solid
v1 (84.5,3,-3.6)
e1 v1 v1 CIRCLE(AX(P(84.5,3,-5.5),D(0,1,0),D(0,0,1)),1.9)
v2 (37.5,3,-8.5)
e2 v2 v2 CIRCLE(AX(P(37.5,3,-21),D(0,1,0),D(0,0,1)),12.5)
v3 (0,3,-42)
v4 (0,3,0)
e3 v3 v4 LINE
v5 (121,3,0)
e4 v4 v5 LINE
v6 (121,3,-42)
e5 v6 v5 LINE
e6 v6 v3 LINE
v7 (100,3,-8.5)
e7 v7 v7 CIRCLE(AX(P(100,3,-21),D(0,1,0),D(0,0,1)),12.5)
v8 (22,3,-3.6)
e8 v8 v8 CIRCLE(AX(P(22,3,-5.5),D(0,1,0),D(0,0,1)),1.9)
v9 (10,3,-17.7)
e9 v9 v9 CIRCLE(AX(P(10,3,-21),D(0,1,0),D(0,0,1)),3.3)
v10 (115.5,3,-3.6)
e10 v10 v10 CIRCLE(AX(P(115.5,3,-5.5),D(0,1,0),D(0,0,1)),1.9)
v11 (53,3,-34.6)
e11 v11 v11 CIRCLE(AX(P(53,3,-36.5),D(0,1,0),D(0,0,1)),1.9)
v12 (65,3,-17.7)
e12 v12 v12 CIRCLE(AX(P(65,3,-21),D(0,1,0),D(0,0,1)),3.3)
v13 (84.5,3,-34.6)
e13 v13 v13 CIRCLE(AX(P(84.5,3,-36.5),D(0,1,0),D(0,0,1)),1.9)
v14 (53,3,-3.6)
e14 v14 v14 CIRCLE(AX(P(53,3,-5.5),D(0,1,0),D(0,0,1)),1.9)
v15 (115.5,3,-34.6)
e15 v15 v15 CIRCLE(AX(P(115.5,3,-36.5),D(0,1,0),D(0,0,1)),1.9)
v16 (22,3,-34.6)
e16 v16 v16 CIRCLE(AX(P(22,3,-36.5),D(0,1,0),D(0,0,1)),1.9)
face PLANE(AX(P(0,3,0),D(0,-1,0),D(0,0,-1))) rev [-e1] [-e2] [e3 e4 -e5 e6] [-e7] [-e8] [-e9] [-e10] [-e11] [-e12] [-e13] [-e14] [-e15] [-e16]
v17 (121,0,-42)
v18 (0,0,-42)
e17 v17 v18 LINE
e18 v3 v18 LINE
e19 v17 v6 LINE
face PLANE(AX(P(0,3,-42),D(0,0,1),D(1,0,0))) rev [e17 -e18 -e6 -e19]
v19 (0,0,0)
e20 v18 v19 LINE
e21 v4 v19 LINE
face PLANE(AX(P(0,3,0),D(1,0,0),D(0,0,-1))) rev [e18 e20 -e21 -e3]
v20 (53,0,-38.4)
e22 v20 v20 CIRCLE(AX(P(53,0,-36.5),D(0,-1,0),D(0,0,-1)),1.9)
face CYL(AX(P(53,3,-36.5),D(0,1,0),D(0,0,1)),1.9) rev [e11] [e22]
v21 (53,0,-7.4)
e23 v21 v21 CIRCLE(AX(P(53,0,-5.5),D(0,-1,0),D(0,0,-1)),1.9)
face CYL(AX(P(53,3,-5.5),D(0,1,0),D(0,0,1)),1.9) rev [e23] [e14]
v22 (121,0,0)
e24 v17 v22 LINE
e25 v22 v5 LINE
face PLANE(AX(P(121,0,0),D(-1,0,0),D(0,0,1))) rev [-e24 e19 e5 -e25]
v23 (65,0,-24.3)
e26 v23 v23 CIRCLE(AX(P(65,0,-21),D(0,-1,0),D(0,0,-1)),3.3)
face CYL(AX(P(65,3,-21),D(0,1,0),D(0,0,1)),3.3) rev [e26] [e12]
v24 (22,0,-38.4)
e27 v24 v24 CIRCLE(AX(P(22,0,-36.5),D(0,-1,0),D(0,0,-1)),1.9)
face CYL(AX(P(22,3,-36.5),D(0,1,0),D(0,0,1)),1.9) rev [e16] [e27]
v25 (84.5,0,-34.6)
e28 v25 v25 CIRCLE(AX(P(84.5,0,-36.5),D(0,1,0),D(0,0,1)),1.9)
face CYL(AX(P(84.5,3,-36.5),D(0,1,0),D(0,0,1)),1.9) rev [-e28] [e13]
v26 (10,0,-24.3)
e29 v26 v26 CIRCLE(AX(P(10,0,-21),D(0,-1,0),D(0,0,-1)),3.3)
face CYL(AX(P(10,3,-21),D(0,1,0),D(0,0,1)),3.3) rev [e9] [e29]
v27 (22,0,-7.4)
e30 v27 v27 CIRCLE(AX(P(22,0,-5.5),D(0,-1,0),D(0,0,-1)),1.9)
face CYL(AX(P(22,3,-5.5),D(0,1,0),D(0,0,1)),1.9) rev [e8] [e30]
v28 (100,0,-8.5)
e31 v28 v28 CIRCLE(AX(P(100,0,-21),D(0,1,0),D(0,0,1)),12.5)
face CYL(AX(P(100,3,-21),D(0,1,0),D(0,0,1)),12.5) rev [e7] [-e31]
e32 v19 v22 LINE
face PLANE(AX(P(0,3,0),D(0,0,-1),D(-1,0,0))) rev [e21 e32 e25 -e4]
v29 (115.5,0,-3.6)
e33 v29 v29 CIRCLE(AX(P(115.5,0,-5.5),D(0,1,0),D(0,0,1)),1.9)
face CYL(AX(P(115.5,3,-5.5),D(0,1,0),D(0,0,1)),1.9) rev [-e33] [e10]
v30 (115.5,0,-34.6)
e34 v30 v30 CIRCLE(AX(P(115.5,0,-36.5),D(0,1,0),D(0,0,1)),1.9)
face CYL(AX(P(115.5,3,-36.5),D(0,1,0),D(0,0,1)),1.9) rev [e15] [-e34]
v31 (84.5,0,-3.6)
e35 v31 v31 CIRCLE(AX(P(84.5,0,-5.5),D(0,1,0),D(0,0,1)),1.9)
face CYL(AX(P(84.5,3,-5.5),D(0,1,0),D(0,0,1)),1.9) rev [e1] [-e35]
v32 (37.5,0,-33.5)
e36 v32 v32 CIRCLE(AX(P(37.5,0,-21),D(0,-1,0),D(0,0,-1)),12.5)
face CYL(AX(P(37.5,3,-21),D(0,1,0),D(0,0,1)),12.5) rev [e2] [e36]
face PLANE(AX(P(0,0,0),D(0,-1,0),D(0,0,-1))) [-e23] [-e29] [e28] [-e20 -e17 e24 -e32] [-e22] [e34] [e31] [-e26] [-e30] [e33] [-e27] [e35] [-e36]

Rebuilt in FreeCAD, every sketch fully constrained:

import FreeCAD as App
import Part
import Sketcher
from FreeCAD import Vector
Q = App.Units.Quantity

doc = App.newDocument("Part")
body = doc.addObject("PartDesign::Body", "Body")

# Sketch on XZ plane
sketch1 = body.newObject("Sketcher::SketchObject", "Sketch")
sketch1.AttachmentSupport = (doc.getObject("XZ_Plane"), [""])
sketch1.MapMode = "FlatFace"
sketch1.addGeometry(Part.LineSegment(Vector(0, -42, 0), Vector(0, 0, 0)), False)
sketch1.addGeometry(Part.LineSegment(Vector(0, 0, 0), Vector(75, 0, 0)), False)
sketch1.addGeometry(Part.LineSegment(Vector(75, 0, 0), Vector(75, -42, 0)), False)
sketch1.addGeometry(Part.LineSegment(Vector(75, -42, 0), Vector(0, -42, 0)), False)
sketch1.addConstraint(Sketcher.Constraint("Coincident", 0, 2, 1, 1))
sketch1.addConstraint(Sketcher.Constraint("Coincident", 1, 2, 2, 1))
sketch1.addConstraint(Sketcher.Constraint("Coincident", 2, 2, 3, 1))
sketch1.addConstraint(Sketcher.Constraint("Coincident", 3, 2, 0, 1))
sketch1.addConstraint(Sketcher.Constraint("Vertical", 0))
sketch1.addConstraint(Sketcher.Constraint("Horizontal", 1))
sketch1.addConstraint(Sketcher.Constraint("Vertical", 2))
sketch1.addConstraint(Sketcher.Constraint("Horizontal", 3))
sketch1.addConstraint(Sketcher.Constraint("Coincident", 0, 2, -1, 1))
sketch1.addConstraint(Sketcher.Constraint("DistanceX", 1, 1, 1, 2, Q("75 mm")))
sketch1.addConstraint(Sketcher.Constraint("DistanceY", 0, 1, 0, 2, Q("42 mm")))
pad1 = body.newObject("PartDesign::Pad", "Pad")
pad1.Profile = sketch1
pad1.Length = 3
pad1.Reversed = True

# Sketch on XZ plane
sketch2 = body.newObject("Sketcher::SketchObject", "Sketch001")
sketch2.AttachmentSupport = (doc.getObject("XZ_Plane"), [""])
sketch2.MapMode = "FlatFace"
sketch2.AttachmentOffset = App.Placement(Vector(0, 0, -3), App.Rotation())
sketch2.addGeometry(Part.Circle(Vector(22, -36.5, 0), Vector(0, 0, 1), 1.9), False)
sketch2.addGeometry(Part.Circle(Vector(53, -36.5, 0), Vector(0, 0, 1), 1.9), False)
sketch2.addGeometry(Part.Circle(Vector(53, -5.5, 0), Vector(0, 0, 1), 1.9), False)
sketch2.addGeometry(Part.Circle(Vector(22, -5.5, 0), Vector(0, 0, 1), 1.9), False)
sketch2.addConstraint(Sketcher.Constraint("Equal", 0, 1))
sketch2.addConstraint(Sketcher.Constraint("Equal", 1, 2))
sketch2.addConstraint(Sketcher.Constraint("Equal", 2, 3))
sketch2.addConstraint(Sketcher.Constraint("Horizontal", 0, 3, 1, 3))
sketch2.addConstraint(Sketcher.Constraint("Horizontal", 2, 3, 3, 3))
sketch2.addConstraint(Sketcher.Constraint("Vertical", 1, 3, 2, 3))
sketch2.addConstraint(Sketcher.Constraint("Vertical", 0, 3, 3, 3))
sketch2.addConstraint(Sketcher.Constraint("Diameter", 0, Q("3.8 mm")))
sketch2.addConstraint(Sketcher.Constraint("DistanceX", -1, 1, 0, 3, Q("22 mm")))
sketch2.addConstraint(Sketcher.Constraint("DistanceX", -1, 1, 1, 3, Q("53 mm")))
sketch2.addConstraint(Sketcher.Constraint("DistanceY", 1, 3, 2, 3, Q("31 mm")))
sketch2.addConstraint(Sketcher.Constraint("DistanceY", 0, 3, -1, 1, Q("36.5 mm")))
doc.recompute()
hole = body.newObject("PartDesign::Hole", "Hole")
hole.Profile = sketch2
hole.ThreadType = "None"
hole.Diameter = 3.8
hole.DepthType = "ThroughAll"
hole.Reversed = True

# Sketch on XZ plane
sketch3 = body.newObject("Sketcher::SketchObject", "Sketch002")
sketch3.AttachmentSupport = (doc.getObject("XZ_Plane"), [""])
sketch3.MapMode = "FlatFace"
sketch3.AttachmentOffset = App.Placement(Vector(0, 0, -3), App.Rotation())
sketch3.addGeometry(Part.Circle(Vector(10, -21, 0), Vector(0, 0, 1), 3.3), False)
sketch3.addGeometry(Part.Circle(Vector(65, -21, 0), Vector(0, 0, 1), 3.3), False)
sketch3.addConstraint(Sketcher.Constraint("Equal", 0, 1))
sketch3.addConstraint(Sketcher.Constraint("Horizontal", 0, 3, 1, 3))
sketch3.addConstraint(Sketcher.Constraint("Diameter", 0, Q("6.6 mm")))
sketch3.addConstraint(Sketcher.Constraint("DistanceX", -1, 1, 0, 3, Q("10 mm")))
sketch3.addConstraint(Sketcher.Constraint("DistanceY", 0, 3, -1, 1, Q("21 mm")))
sketch3.addConstraint(Sketcher.Constraint("DistanceX", -1, 1, 1, 3, Q("65 mm")))
doc.recompute()
hole2 = body.newObject("PartDesign::Hole", "Hole001")
hole2.Profile = sketch3
hole2.ThreadType = "None"
hole2.Diameter = 6.6
hole2.DepthType = "ThroughAll"
hole2.Reversed = True

# Sketch on XZ plane
sketch4 = body.newObject("Sketcher::SketchObject", "Sketch003")
sketch4.AttachmentSupport = (doc.getObject("XZ_Plane"), [""])
sketch4.MapMode = "FlatFace"
sketch4.AttachmentOffset = App.Placement(Vector(0, 0, -3), App.Rotation())
sketch4.addGeometry(Part.Circle(Vector(38, -21, 0), Vector(0, 0, 1), 12), False)
sketch4.addConstraint(Sketcher.Constraint("Diameter", 0, Q("25 mm")))
sketch4.addConstraint(Sketcher.Constraint("DistanceY", 0, 3, -1, 1, Q("21 mm")))
sketch4.addConstraint(Sketcher.Constraint("DistanceX", -1, 1, 0, 3, Q("37.5 mm")))
doc.recompute()
hole3 = body.newObject("PartDesign::Hole", "Hole002")
hole3.Profile = sketch4
hole3.ThreadType = "None"
hole3.Diameter = 25
hole3.DepthType = "ThroughAll"
hole3.Reversed = True

# Sketch on XZ plane
sketch5 = body.newObject("Sketcher::SketchObject", "Sketch004")
sketch5.AttachmentSupport = (doc.getObject("XZ_Plane"), [""])
sketch5.MapMode = "FlatFace"
sketch5.AttachmentOffset = App.Placement(Vector(0, 0, -3), App.Rotation())
sketch5.addGeometry(Part.LineSegment(Vector(121, -42, 0), Vector(75, -42, 0)), False)
sketch5.addGeometry(Part.LineSegment(Vector(75, -42, 0), Vector(75, 0, 0)), False)
sketch5.addGeometry(Part.LineSegment(Vector(75, 0, 0), Vector(121, 0, 0)), False)
sketch5.addGeometry(Part.LineSegment(Vector(121, 0, 0), Vector(121, -42, 0)), False)
sketch5.addConstraint(Sketcher.Constraint("Coincident", 0, 2, 1, 1))
sketch5.addConstraint(Sketcher.Constraint("Coincident", 1, 2, 2, 1))
sketch5.addConstraint(Sketcher.Constraint("Coincident", 2, 2, 3, 1))
sketch5.addConstraint(Sketcher.Constraint("Coincident", 3, 2, 0, 1))
sketch5.addConstraint(Sketcher.Constraint("Horizontal", 0))
sketch5.addConstraint(Sketcher.Constraint("Vertical", 1))
sketch5.addConstraint(Sketcher.Constraint("Horizontal", 2))
sketch5.addConstraint(Sketcher.Constraint("Vertical", 3))
sketch5.addConstraint(Sketcher.Constraint("PointOnObject", 1, 2, -1))
sketch5.addConstraint(Sketcher.Constraint("DistanceX", 0, 2, 0, 1, Q("46 mm")))
sketch5.addConstraint(Sketcher.Constraint("DistanceY", 1, 1, 1, 2, Q("42 mm")))
sketch5.addConstraint(Sketcher.Constraint("DistanceX", -1, 1, 0, 2, Q("75 mm")))
pad2 = body.newObject("PartDesign::Pad", "Pad001")
pad2.Profile = sketch5
pad2.Length = 3

# Sketch on XZ plane
sketch6 = body.newObject("Sketcher::SketchObject", "Sketch005")
sketch6.AttachmentSupport = (doc.getObject("XZ_Plane"), [""])
sketch6.MapMode = "FlatFace"
sketch6.AttachmentOffset = App.Placement(Vector(0, 0, -3), App.Rotation())
sketch6.addGeometry(Part.Circle(Vector(84.5, -36.5, 0), Vector(0, 0, 1), 1.9), False)
sketch6.addGeometry(Part.Circle(Vector(115.5, -36.5, 0), Vector(0, 0, 1), 1.9), False)
sketch6.addGeometry(Part.Circle(Vector(115.5, -5.5, 0), Vector(0, 0, 1), 1.9), False)
sketch6.addGeometry(Part.Circle(Vector(84.5, -5.5, 0), Vector(0, 0, 1), 1.9), False)
sketch6.addConstraint(Sketcher.Constraint("Equal", 0, 1))
sketch6.addConstraint(Sketcher.Constraint("Equal", 1, 2))
sketch6.addConstraint(Sketcher.Constraint("Equal", 2, 3))
sketch6.addConstraint(Sketcher.Constraint("Horizontal", 0, 3, 1, 3))
sketch6.addConstraint(Sketcher.Constraint("Horizontal", 2, 3, 3, 3))
sketch6.addConstraint(Sketcher.Constraint("Vertical", 1, 3, 2, 3))
sketch6.addConstraint(Sketcher.Constraint("Vertical", 0, 3, 3, 3))
sketch6.addConstraint(Sketcher.Constraint("Diameter", 0, Q("3.8 mm")))
sketch6.addConstraint(Sketcher.Constraint("DistanceX", 0, 3, 1, 3, Q("31 mm")))
sketch6.addConstraint(Sketcher.Constraint("DistanceY", 1, 3, 2, 3, Q("31 mm")))
sketch6.addConstraint(Sketcher.Constraint("DistanceX", -1, 1, 0, 3, Q("84.5 mm")))
sketch6.addConstraint(Sketcher.Constraint("DistanceY", 0, 3, -1, 1, Q("36.5 mm")))
doc.recompute()
hole4 = body.newObject("PartDesign::Hole", "Hole003")
hole4.Profile = sketch6
hole4.ThreadType = "None"
hole4.Diameter = 3.8
hole4.DepthType = "ThroughAll"
hole4.Reversed = True

# Sketch on XZ plane
sketch7 = body.newObject("Sketcher::SketchObject", "Sketch006")
sketch7.AttachmentSupport = (doc.getObject("XZ_Plane"), [""])
sketch7.MapMode = "FlatFace"
sketch7.AttachmentOffset = App.Placement(Vector(0, 0, -3), App.Rotation())
sketch7.addGeometry(Part.Circle(Vector(100, -21, 0), Vector(0, 0, 1), 12), False)
sketch7.addConstraint(Sketcher.Constraint("Diameter", 0, Q("25 mm")))
sketch7.addConstraint(Sketcher.Constraint("DistanceX", -1, 1, 0, 3, Q("100 mm")))
sketch7.addConstraint(Sketcher.Constraint("DistanceY", 0, 3, -1, 1, Q("21 mm")))
doc.recompute()
hole5 = body.newObject("PartDesign::Hole", "Hole004")
hole5.Profile = sketch7
hole5.ThreadType = "None"
hole5.Diameter = 25
hole5.DepthType = "ThroughAll"
hole5.Reversed = True

doc.recompute()
